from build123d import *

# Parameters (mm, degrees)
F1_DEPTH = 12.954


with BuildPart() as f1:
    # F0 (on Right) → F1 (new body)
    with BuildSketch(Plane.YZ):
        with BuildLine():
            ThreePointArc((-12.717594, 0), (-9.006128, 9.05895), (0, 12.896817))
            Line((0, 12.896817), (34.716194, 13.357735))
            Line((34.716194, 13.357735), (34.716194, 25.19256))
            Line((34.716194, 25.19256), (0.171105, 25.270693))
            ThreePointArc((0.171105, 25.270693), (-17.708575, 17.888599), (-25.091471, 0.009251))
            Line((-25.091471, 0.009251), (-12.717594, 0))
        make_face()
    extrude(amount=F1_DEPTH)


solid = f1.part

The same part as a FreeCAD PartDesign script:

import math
import FreeCAD as App
import Part
import Sketcher

V = App.Vector
Q = App.Units.Quantity

doc = App.newDocument("Part")
body = doc.addObject("PartDesign::Body", "Body")

sketch1 = doc.addObject("Sketcher::SketchObject", "Sketch")
body.addObject(sketch1)
sketch1.AttachmentSupport = (doc.YZ_Plane, [""])
sketch1.MapMode = "FlatFace"
sketch1.addGeometry([
    Part.ArcOfCircle(Part.Circle(V(0.171103, 0.009252, 0), V(0, 0, 1), 12.8887), math.radians(90.760649), math.radians(180.04113)),
    Part.LineSegment(V(0, 12.896817, 0), V(34.716194, 13.357735, 0)),
    Part.LineSegment(V(34.716194, 13.357735, 0), V(34.716194, 25.19256, 0)),
    Part.LineSegment(V(34.716194, 25.19256, 0), V(0.171105, 25.270693, 0)),
    Part.ArcOfCircle(Part.Circle(V(0.114097, 0.065127, 0), V(0, 0, 1), 25.20563), math.radians(89.870414), math.radians(180.127014)),
    Part.LineSegment(V(-25.091471, 0.009251, 0), V(-12.717594, 0, 0)),
], False)
sketch1.addConstraint([
    Sketcher.Constraint("Coincident", 0, 1, 1, 1),
    Sketcher.Constraint("Coincident", 1, 2, 2, 1),
    Sketcher.Constraint("Coincident", 2, 2, 3, 1),
    Sketcher.Constraint("Coincident", 3, 2, 4, 1),
    Sketcher.Constraint("Coincident", 4, 2, 5, 1),
    Sketcher.Constraint("Coincident", 5, 2, 0, 2),
    Sketcher.Constraint("Vertical", 2),
    Sketcher.Constraint("PointOnObject", 0, 1, -2),
    Sketcher.Constraint("PointOnObject", 5, 2, -1),
    Sketcher.Constraint("Radius", 0, 12.8887),
    Sketcher.Constraint("Radius", 4, 25.20563),
    Sketcher.Constraint("DistanceY", 4, 2, 4, 3, Q("0.0021998 in")),
    Sketcher.Constraint("DistanceX", 5, 2, 3, 2, 12.888699),
    Sketcher.Constraint("Distance", 5, 12.37388),
    Sketcher.Constraint("DistanceY", 2, 1, 2, 2, 11.834825),
    Sketcher.Constraint("DistanceY", -1, 1, 2, 2, 25.19256),
    Sketcher.Constraint("DistanceX", 4, 2, -1, 1, 25.091471),
    Sketcher.Constraint("DistanceY", -1, 1, 4, 2, 0.009251),
    Sketcher.Constraint("DistanceY", 4, 3, 0, 1, 12.83169),
    Sketcher.Constraint("DistanceX", 0, 3, 1, 2, 34.545091),
])
pad1 = doc.addObject("PartDesign::Pad", "Pad")
body.addObject(pad1)
pad1.Profile = sketch1
pad1.Length = Q("0.51 in")

doc.recompute()
